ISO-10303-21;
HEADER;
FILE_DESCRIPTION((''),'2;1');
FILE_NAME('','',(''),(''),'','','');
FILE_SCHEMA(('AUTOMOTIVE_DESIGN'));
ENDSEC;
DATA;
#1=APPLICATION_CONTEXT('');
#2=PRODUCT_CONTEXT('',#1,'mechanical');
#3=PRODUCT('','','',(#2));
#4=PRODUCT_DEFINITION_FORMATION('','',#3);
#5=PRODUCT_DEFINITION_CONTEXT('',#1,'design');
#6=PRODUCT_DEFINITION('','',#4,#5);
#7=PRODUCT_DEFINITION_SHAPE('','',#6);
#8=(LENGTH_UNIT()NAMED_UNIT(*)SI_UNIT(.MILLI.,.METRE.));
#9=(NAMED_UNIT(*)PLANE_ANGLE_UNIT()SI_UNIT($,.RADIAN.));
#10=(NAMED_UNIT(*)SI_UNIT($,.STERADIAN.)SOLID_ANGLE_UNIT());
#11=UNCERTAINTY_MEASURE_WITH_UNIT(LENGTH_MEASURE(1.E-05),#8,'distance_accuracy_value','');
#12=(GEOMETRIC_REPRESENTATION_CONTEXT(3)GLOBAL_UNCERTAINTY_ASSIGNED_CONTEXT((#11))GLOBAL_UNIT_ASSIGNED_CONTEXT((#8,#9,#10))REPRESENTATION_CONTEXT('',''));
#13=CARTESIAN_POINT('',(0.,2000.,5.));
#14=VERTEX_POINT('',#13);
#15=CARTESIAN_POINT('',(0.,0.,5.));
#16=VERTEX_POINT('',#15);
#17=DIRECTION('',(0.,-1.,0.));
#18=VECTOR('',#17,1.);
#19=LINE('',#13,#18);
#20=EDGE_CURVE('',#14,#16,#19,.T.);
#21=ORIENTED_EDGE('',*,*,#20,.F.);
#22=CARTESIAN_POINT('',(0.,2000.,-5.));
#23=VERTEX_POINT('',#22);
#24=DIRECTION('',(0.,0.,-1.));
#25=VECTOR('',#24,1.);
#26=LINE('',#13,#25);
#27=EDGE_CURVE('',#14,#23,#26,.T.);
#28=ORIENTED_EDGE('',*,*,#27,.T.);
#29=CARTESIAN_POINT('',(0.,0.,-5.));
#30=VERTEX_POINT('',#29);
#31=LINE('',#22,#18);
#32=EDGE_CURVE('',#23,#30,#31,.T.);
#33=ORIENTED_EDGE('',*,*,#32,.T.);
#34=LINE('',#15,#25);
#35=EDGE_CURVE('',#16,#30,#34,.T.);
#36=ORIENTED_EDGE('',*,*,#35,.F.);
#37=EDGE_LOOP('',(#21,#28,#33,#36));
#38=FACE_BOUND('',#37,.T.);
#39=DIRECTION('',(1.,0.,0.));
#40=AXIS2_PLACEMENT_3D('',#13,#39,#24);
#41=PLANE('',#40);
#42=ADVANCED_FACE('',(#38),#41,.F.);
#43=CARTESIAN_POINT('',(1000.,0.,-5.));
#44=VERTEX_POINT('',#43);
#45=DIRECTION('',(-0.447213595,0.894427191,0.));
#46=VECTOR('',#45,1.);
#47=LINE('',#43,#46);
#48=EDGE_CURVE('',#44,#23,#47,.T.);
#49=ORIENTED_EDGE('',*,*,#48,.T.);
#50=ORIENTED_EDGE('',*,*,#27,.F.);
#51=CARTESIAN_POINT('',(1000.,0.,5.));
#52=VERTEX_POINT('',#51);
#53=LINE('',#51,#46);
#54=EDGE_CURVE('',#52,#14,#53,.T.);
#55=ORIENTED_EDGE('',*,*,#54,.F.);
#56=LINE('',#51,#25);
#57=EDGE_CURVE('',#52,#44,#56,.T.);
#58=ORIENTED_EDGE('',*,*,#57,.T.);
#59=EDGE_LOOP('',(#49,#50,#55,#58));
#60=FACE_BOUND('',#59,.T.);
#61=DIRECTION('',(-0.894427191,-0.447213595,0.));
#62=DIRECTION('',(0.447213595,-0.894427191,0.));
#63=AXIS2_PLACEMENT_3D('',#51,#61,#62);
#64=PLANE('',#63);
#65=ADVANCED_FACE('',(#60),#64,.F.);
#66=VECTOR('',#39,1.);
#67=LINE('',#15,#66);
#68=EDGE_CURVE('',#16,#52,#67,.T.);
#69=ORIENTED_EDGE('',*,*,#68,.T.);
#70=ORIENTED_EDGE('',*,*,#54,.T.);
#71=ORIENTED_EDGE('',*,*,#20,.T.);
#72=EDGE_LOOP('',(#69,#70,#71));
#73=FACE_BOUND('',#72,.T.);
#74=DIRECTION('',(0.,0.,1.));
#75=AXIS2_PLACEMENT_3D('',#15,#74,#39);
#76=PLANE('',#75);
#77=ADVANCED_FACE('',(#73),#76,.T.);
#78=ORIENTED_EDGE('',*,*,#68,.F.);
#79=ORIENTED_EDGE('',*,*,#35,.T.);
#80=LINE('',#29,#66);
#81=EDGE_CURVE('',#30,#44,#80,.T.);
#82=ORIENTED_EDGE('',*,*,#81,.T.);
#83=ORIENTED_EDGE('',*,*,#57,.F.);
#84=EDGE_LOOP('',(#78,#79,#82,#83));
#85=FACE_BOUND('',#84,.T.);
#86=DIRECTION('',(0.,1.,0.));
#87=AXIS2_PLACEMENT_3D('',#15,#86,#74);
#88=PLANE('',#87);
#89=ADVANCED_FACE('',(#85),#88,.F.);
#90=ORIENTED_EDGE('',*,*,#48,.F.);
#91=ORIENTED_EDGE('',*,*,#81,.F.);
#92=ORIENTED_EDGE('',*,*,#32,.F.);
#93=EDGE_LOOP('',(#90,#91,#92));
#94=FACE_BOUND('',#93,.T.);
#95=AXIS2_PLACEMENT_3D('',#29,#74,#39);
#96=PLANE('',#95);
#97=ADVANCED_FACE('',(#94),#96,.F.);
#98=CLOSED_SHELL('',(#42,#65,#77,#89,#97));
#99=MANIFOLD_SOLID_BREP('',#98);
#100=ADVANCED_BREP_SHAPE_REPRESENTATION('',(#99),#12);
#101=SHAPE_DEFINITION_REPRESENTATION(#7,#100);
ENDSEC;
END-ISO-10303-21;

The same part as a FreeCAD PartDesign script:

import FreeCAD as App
import Part
import Sketcher
Q = App.Units.Quantity


def add_polygon(sketch, points):
    """Adds a closed chain of lines whose ends are joined by coincident constraints."""
    first, n = sketch.GeometryCount, len(points)
    for a, b in zip(points, points[1:] + points[:1]):
        sketch.addGeometry(Part.LineSegment(App.Vector(*a, 0), App.Vector(*b, 0)), False)
    for i in range(n):
        sketch.addConstraint(Sketcher.Constraint("Coincident", first + i, 2, first + (i + 1) % n, 1))

doc = App.newDocument("Part")
body = doc.addObject("PartDesign::Body", "Body")

sketch1 = body.newObject("Sketcher::SketchObject", "Sketch")
sketch1.AttachmentSupport = (doc.getObject("XY_Plane"), [""])
sketch1.MapMode = "FlatFace"
add_polygon(sketch1, [(0, 0), (1000, 0), (0, 2000)])
sketch1.addConstraint(Sketcher.Constraint("Horizontal", 0))
sketch1.addConstraint(Sketcher.Constraint("Vertical", 2))
sketch1.addConstraint(Sketcher.Constraint("Coincident", 2, 2, -1, 1))
sketch1.addConstraint(Sketcher.Constraint("DistanceX", 0, 1, 0, 2, Q("1000 mm")))
sketch1.addConstraint(Sketcher.Constraint("DistanceY", 2, 2, 2, 1, Q("2000 mm")))
pad1 = body.newObject("PartDesign::Pad", "Pad")
pad1.Profile = sketch1
pad1.Length = 10
pad1.Midplane = True

doc.recompute()
